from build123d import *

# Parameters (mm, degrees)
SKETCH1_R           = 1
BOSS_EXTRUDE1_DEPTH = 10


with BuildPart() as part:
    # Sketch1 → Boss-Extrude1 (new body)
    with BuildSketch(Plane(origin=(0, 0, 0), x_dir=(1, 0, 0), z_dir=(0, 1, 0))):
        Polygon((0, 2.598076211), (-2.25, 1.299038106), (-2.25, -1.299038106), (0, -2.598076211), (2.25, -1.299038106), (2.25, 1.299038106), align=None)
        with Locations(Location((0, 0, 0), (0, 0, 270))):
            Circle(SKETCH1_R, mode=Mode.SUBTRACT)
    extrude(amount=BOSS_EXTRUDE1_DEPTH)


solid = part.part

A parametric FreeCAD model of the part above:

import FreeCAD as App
import Part
import Sketcher
from FreeCAD import Vector
Q = App.Units.Quantity

doc = App.newDocument("Part")
params = doc.addObject("Spreadsheet::Sheet", "Params")
for row, (alias, value) in enumerate([
    ("sketch1_diameter", "2 mm"),
    ("pad1_length", "10 mm"),
], start=1):
    params.set(f"A{row}", alias)
    params.set(f"B{row}", "=" + value)
    params.setAlias(f"B{row}", alias)

body = doc.addObject("PartDesign::Body", "Body")

# Sketch on XZ plane
sketch1 = doc.addObject("Sketcher::SketchObject", "Sketch")
body.addObject(sketch1)
sketch1.AttachmentSupport = (doc.XZ_Plane, [""])
sketch1.MapMode = "FlatFace"
sketch1.addGeometry([
    Part.LineSegment(Vector(0, -2.6, 0), Vector(-2.2, -1.3, 0)),  # 0
    Part.LineSegment(Vector(-2.2, -1.3, 0), Vector(-2.2, 1.3, 0)),  # 1
    Part.LineSegment(Vector(-2.2, 1.3, 0), Vector(0, 2.6, 0)),  # 2
    Part.LineSegment(Vector(0, 2.6, 0), Vector(2.2, 1.3, 0)),  # 3
    Part.LineSegment(Vector(2.2, 1.3, 0), Vector(2.2, -1.3, 0)),  # 4
    Part.LineSegment(Vector(2.2, -1.3, 0), Vector(0, -2.6, 0)),  # 5
    Part.Circle(Vector(0, 0, 0), Vector(0, 0, 1), 1),  # 6
], False)
sketch1.addConstraint([
    Sketcher.Constraint("Coincident", 0, 2, 1, 1),
    Sketcher.Constraint("Coincident", 1, 2, 2, 1),
    Sketcher.Constraint("Coincident", 2, 2, 3, 1),
    Sketcher.Constraint("Coincident", 3, 2, 4, 1),
    Sketcher.Constraint("Coincident", 4, 2, 5, 1),
    Sketcher.Constraint("Coincident", 5, 2, 0, 1),
    Sketcher.Constraint("Vertical", 1),
    Sketcher.Constraint("Vertical", 4),
    Sketcher.Constraint("Coincident", 6, 3, -1, 1),
    Sketcher.Constraint("Symmetric", 0, 2, 3, 2, -1, 1),
    Sketcher.Constraint("Symmetric", 2, 2, 5, 2, -1, 1),
    Sketcher.Constraint("PointOnObject", 2, 2, -2),
    Sketcher.Constraint("Parallel", 2, 5),
    Sketcher.Constraint("Horizontal", 1, 2, 3, 2),
    Sketcher.Constraint("Diameter", 6, 2.0),
    Sketcher.Constraint("Angle", 0, Q("150 deg")),
    Sketcher.Constraint("DistanceX", 1, 2, 3, 2, 4.5),
    Sketcher.Constraint("DistanceY", 1, 1, 1, 2, 2.598076),
])
sketch1.setExpression("Constraints[14]", "Params.sketch1_diameter")
pad1 = doc.addObject("PartDesign::Pad", "Pad")
body.addObject(pad1)
pad1.Profile = sketch1
pad1.setExpression("Length", "Params.pad1_length")
pad1.Reversed = True

doc.recompute()
